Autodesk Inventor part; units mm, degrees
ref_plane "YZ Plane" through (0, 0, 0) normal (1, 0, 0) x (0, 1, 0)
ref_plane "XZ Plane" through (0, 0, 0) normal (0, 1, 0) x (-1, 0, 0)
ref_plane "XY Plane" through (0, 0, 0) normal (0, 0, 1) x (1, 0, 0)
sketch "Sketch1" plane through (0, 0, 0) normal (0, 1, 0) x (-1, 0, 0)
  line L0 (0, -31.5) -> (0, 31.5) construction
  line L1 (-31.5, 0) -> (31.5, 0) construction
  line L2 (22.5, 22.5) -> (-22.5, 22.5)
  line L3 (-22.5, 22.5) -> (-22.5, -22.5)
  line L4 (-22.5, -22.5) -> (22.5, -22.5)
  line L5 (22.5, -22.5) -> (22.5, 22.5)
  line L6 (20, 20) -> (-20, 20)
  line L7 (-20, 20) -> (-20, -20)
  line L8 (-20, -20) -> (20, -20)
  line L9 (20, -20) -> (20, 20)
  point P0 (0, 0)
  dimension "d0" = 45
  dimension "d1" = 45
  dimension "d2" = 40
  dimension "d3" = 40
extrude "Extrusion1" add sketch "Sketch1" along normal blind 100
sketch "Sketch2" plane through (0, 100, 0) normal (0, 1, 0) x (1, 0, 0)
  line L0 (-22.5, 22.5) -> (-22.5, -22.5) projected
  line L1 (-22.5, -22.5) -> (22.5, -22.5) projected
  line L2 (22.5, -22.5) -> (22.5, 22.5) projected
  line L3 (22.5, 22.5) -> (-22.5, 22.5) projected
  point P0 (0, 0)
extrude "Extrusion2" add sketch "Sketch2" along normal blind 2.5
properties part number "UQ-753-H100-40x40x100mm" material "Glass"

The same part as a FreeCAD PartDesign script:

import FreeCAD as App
import Part
import Sketcher
Q = App.Units.Quantity


def add_polygon(sketch, points):
    """Adds a closed chain of lines whose ends are joined by coincident constraints."""
    first, n = sketch.GeometryCount, len(points)
    for a, b in zip(points, points[1:] + points[:1]):
        sketch.addGeometry(Part.LineSegment(App.Vector(*a, 0), App.Vector(*b, 0)), False)
    for i in range(n):
        sketch.addConstraint(Sketcher.Constraint("Coincident", first + i, 2, first + (i + 1) % n, 1))

doc = App.newDocument("Part")
body = doc.addObject("PartDesign::Body", "Body")

# Sketch on XZ plane
sketch1 = body.newObject("Sketcher::SketchObject", "Sketch")
sketch1.AttachmentSupport = (doc.getObject("XZ_Plane"), [""])
sketch1.MapMode = "FlatFace"
add_polygon(sketch1, [(-22.5, -22.5), (-22.5, 22.5), (22.5, 22.5), (22.5, -22.5)])  # lines 0-3
add_polygon(sketch1, [(20, 20), (-20, 20), (-20, -20), (20, -20)])  # lines 4-7
sketch1.addConstraint([
    Sketcher.Constraint("Vertical", 0),
    Sketcher.Constraint("Horizontal", 1),
    Sketcher.Constraint("Vertical", 2),
    Sketcher.Constraint("Horizontal", 3),
    Sketcher.Constraint("Horizontal", 4),
    Sketcher.Constraint("Vertical", 5),
    Sketcher.Constraint("Horizontal", 6),
    Sketcher.Constraint("Vertical", 7),
    Sketcher.Constraint("Symmetric", 0, 2, 2, 2, -1, 1),
    Sketcher.Constraint("Symmetric", 4, 2, 6, 2, -1, 1),
    Sketcher.Constraint("Equal", 3, 0),
    Sketcher.Constraint("Equal", 6, 5),
    Sketcher.Constraint("DistanceX", 1, 1, 1, 2, Q("45 mm")),
    Sketcher.Constraint("DistanceX", 4, 2, 4, 1, Q("40 mm")),
])
pad1 = body.newObject("PartDesign::Pad", "Pad")
pad1.Profile = sketch1
pad1.Length = 100
pad1.Reversed = True

# Sketch on XZ plane
sketch2 = body.newObject("Sketcher::SketchObject", "Sketch001")
sketch2.AttachmentSupport = (doc.getObject("XZ_Plane"), [""])
sketch2.MapMode = "FlatFace"
sketch2.AttachmentOffset = App.Placement(App.Vector(0, 0, -100), App.Rotation())
add_polygon(sketch2, [(22.5, -22.5), (-22.5, -22.5), (-22.5, 22.5), (22.5, 22.5)])  # lines 0-3
sketch2.addConstraint([
    Sketcher.Constraint("Horizontal", 0),
    Sketcher.Constraint("Vertical", 1),
    Sketcher.Constraint("Horizontal", 2),
    Sketcher.Constraint("Vertical", 3),
    Sketcher.Constraint("Symmetric", 0, 2, 2, 2, -1, 1),
    Sketcher.Constraint("Equal", 2, 1),
    Sketcher.Constraint("DistanceX", 0, 2, 0, 1, Q("45 mm")),
])
pad2 = body.newObject("PartDesign::Pad", "Pad001")
pad2.Profile = sketch2
pad2.Length = 2.5
pad2.Reversed = True

doc.recompute()
